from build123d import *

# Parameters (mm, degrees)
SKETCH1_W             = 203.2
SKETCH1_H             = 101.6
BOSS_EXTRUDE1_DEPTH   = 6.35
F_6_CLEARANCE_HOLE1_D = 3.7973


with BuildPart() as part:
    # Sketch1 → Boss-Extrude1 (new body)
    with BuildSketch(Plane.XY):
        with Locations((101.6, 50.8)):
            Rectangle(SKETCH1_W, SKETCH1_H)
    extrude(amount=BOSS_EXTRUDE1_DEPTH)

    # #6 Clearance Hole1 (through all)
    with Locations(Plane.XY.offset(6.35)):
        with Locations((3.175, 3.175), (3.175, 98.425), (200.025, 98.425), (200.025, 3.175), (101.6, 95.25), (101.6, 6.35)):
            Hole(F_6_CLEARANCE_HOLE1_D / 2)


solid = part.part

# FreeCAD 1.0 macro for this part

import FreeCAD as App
import Part
import Sketcher

V = App.Vector
Q = App.Units.Quantity

doc = App.newDocument("Part")
body = doc.addObject("PartDesign::Body", "Body")

# Sketch on XY plane
sketch1 = doc.addObject("Sketcher::SketchObject", "Sketch")
body.addObject(sketch1)
sketch1.AttachmentSupport = (doc.XY_Plane, [""])
sketch1.MapMode = "FlatFace"
sketch1.addGeometry([
    Part.LineSegment(V(0, 102, 0), V(0, 0, 0)),
    Part.LineSegment(V(0, 0, 0), V(203, 0, 0)),
    Part.LineSegment(V(203, 0, 0), V(203, 102, 0)),
    Part.LineSegment(V(203, 102, 0), V(0, 102, 0)),
], False)
sketch1.addConstraint([
    Sketcher.Constraint("Coincident", 0, 2, 1, 1),
    Sketcher.Constraint("Coincident", 1, 2, 2, 1),
    Sketcher.Constraint("Coincident", 2, 2, 3, 1),
    Sketcher.Constraint("Coincident", 3, 2, 0, 1),
    Sketcher.Constraint("Vertical", 0),
    Sketcher.Constraint("Horizontal", 1),
    Sketcher.Constraint("Vertical", 2),
    Sketcher.Constraint("Horizontal", 3),
    Sketcher.Constraint("Coincident", 0, 2, -1, 1),
    Sketcher.Constraint("DistanceX", 1, 1, 1, 2, Q("8 in")),
    Sketcher.Constraint("DistanceY", 0, 2, 0, 1, Q("4 in")),
])
pad1 = doc.addObject("PartDesign::Pad", "Pad")
body.addObject(pad1)
pad1.Profile = sketch1
pad1.Length = Q("0.25 in")

# Sketch on XY plane
sketch2 = doc.addObject("Sketcher::SketchObject", "Sketch001")
body.addObject(sketch2)
sketch2.AttachmentSupport = (doc.XY_Plane, [""])
sketch2.MapMode = "FlatFace"
sketch2.AttachmentOffset = App.Placement(V(0, 0, 0.25 * 25.4), App.Rotation())
sketch2.addGeometry([
    Part.Circle(V(3.2, 3.2, 0), V(0, 0, 1), 1.9),  # 0
    Part.Circle(V(3.2, 98.4, 0), V(0, 0, 1), 1.9),  # 1
    Part.Circle(V(200, 98.4, 0), V(0, 0, 1), 1.9),  # 2
    Part.Circle(V(200, 3.2, 0), V(0, 0, 1), 1.9),  # 3
    Part.Circle(V(101.6, 95.2, 0), V(0, 0, 1), 1.9),  # 4
    Part.Circle(V(101.6, 6.3, 0), V(0, 0, 1), 1.9),  # 5
], False)
sketch2.addConstraint([
    Sketcher.Constraint("Equal", 0, 1),
    Sketcher.Constraint("Equal", 1, 2),
    Sketcher.Constraint("Equal", 2, 3),
    Sketcher.Constraint("Equal", 3, 4),
    Sketcher.Constraint("Equal", 4, 5),
    Sketcher.Constraint("Horizontal", 1, 3, 2, 3),
    Sketcher.Constraint("Horizontal", 0, 3, 3, 3),
    Sketcher.Constraint("Vertical", 0, 3, 1, 3),
    Sketcher.Constraint("Vertical", 2, 3, 3, 3),
    Sketcher.Constraint("Vertical", 4, 3, 5, 3),
    Sketcher.Constraint("DistanceX", -1, 1, 4, 3, Q("4 in")),
    Sketcher.Constraint("Diameter", 0, Q("0.1495 in")),
    Sketcher.Constraint("DistanceY", 5, 3, 4, 3, Q("3.5 in")),
    Sketcher.Constraint("DistanceY", -1, 1, 4, 3, Q("3.75 in")),
    Sketcher.Constraint("DistanceY", 0, 3, 1, 3, Q("3.75 in")),
    Sketcher.Constraint("DistanceX", 1, 3, 2, 3, Q("7.75 in")),
    Sketcher.Constraint("DistanceX", -1, 1, 0, 3, Q("0.125 in")),
    Sketcher.Constraint("DistanceY", -1, 1, 0, 3, Q("0.125 in")),
])
doc.recompute()
hole = doc.addObject("PartDesign::Hole", "Hole")
body.addObject(hole)
hole.Profile = sketch2
hole.ThreadType = "None"
hole.Diameter = Q("0.1495 in")
hole.DepthType = "ThroughAll"

doc.recompute()
